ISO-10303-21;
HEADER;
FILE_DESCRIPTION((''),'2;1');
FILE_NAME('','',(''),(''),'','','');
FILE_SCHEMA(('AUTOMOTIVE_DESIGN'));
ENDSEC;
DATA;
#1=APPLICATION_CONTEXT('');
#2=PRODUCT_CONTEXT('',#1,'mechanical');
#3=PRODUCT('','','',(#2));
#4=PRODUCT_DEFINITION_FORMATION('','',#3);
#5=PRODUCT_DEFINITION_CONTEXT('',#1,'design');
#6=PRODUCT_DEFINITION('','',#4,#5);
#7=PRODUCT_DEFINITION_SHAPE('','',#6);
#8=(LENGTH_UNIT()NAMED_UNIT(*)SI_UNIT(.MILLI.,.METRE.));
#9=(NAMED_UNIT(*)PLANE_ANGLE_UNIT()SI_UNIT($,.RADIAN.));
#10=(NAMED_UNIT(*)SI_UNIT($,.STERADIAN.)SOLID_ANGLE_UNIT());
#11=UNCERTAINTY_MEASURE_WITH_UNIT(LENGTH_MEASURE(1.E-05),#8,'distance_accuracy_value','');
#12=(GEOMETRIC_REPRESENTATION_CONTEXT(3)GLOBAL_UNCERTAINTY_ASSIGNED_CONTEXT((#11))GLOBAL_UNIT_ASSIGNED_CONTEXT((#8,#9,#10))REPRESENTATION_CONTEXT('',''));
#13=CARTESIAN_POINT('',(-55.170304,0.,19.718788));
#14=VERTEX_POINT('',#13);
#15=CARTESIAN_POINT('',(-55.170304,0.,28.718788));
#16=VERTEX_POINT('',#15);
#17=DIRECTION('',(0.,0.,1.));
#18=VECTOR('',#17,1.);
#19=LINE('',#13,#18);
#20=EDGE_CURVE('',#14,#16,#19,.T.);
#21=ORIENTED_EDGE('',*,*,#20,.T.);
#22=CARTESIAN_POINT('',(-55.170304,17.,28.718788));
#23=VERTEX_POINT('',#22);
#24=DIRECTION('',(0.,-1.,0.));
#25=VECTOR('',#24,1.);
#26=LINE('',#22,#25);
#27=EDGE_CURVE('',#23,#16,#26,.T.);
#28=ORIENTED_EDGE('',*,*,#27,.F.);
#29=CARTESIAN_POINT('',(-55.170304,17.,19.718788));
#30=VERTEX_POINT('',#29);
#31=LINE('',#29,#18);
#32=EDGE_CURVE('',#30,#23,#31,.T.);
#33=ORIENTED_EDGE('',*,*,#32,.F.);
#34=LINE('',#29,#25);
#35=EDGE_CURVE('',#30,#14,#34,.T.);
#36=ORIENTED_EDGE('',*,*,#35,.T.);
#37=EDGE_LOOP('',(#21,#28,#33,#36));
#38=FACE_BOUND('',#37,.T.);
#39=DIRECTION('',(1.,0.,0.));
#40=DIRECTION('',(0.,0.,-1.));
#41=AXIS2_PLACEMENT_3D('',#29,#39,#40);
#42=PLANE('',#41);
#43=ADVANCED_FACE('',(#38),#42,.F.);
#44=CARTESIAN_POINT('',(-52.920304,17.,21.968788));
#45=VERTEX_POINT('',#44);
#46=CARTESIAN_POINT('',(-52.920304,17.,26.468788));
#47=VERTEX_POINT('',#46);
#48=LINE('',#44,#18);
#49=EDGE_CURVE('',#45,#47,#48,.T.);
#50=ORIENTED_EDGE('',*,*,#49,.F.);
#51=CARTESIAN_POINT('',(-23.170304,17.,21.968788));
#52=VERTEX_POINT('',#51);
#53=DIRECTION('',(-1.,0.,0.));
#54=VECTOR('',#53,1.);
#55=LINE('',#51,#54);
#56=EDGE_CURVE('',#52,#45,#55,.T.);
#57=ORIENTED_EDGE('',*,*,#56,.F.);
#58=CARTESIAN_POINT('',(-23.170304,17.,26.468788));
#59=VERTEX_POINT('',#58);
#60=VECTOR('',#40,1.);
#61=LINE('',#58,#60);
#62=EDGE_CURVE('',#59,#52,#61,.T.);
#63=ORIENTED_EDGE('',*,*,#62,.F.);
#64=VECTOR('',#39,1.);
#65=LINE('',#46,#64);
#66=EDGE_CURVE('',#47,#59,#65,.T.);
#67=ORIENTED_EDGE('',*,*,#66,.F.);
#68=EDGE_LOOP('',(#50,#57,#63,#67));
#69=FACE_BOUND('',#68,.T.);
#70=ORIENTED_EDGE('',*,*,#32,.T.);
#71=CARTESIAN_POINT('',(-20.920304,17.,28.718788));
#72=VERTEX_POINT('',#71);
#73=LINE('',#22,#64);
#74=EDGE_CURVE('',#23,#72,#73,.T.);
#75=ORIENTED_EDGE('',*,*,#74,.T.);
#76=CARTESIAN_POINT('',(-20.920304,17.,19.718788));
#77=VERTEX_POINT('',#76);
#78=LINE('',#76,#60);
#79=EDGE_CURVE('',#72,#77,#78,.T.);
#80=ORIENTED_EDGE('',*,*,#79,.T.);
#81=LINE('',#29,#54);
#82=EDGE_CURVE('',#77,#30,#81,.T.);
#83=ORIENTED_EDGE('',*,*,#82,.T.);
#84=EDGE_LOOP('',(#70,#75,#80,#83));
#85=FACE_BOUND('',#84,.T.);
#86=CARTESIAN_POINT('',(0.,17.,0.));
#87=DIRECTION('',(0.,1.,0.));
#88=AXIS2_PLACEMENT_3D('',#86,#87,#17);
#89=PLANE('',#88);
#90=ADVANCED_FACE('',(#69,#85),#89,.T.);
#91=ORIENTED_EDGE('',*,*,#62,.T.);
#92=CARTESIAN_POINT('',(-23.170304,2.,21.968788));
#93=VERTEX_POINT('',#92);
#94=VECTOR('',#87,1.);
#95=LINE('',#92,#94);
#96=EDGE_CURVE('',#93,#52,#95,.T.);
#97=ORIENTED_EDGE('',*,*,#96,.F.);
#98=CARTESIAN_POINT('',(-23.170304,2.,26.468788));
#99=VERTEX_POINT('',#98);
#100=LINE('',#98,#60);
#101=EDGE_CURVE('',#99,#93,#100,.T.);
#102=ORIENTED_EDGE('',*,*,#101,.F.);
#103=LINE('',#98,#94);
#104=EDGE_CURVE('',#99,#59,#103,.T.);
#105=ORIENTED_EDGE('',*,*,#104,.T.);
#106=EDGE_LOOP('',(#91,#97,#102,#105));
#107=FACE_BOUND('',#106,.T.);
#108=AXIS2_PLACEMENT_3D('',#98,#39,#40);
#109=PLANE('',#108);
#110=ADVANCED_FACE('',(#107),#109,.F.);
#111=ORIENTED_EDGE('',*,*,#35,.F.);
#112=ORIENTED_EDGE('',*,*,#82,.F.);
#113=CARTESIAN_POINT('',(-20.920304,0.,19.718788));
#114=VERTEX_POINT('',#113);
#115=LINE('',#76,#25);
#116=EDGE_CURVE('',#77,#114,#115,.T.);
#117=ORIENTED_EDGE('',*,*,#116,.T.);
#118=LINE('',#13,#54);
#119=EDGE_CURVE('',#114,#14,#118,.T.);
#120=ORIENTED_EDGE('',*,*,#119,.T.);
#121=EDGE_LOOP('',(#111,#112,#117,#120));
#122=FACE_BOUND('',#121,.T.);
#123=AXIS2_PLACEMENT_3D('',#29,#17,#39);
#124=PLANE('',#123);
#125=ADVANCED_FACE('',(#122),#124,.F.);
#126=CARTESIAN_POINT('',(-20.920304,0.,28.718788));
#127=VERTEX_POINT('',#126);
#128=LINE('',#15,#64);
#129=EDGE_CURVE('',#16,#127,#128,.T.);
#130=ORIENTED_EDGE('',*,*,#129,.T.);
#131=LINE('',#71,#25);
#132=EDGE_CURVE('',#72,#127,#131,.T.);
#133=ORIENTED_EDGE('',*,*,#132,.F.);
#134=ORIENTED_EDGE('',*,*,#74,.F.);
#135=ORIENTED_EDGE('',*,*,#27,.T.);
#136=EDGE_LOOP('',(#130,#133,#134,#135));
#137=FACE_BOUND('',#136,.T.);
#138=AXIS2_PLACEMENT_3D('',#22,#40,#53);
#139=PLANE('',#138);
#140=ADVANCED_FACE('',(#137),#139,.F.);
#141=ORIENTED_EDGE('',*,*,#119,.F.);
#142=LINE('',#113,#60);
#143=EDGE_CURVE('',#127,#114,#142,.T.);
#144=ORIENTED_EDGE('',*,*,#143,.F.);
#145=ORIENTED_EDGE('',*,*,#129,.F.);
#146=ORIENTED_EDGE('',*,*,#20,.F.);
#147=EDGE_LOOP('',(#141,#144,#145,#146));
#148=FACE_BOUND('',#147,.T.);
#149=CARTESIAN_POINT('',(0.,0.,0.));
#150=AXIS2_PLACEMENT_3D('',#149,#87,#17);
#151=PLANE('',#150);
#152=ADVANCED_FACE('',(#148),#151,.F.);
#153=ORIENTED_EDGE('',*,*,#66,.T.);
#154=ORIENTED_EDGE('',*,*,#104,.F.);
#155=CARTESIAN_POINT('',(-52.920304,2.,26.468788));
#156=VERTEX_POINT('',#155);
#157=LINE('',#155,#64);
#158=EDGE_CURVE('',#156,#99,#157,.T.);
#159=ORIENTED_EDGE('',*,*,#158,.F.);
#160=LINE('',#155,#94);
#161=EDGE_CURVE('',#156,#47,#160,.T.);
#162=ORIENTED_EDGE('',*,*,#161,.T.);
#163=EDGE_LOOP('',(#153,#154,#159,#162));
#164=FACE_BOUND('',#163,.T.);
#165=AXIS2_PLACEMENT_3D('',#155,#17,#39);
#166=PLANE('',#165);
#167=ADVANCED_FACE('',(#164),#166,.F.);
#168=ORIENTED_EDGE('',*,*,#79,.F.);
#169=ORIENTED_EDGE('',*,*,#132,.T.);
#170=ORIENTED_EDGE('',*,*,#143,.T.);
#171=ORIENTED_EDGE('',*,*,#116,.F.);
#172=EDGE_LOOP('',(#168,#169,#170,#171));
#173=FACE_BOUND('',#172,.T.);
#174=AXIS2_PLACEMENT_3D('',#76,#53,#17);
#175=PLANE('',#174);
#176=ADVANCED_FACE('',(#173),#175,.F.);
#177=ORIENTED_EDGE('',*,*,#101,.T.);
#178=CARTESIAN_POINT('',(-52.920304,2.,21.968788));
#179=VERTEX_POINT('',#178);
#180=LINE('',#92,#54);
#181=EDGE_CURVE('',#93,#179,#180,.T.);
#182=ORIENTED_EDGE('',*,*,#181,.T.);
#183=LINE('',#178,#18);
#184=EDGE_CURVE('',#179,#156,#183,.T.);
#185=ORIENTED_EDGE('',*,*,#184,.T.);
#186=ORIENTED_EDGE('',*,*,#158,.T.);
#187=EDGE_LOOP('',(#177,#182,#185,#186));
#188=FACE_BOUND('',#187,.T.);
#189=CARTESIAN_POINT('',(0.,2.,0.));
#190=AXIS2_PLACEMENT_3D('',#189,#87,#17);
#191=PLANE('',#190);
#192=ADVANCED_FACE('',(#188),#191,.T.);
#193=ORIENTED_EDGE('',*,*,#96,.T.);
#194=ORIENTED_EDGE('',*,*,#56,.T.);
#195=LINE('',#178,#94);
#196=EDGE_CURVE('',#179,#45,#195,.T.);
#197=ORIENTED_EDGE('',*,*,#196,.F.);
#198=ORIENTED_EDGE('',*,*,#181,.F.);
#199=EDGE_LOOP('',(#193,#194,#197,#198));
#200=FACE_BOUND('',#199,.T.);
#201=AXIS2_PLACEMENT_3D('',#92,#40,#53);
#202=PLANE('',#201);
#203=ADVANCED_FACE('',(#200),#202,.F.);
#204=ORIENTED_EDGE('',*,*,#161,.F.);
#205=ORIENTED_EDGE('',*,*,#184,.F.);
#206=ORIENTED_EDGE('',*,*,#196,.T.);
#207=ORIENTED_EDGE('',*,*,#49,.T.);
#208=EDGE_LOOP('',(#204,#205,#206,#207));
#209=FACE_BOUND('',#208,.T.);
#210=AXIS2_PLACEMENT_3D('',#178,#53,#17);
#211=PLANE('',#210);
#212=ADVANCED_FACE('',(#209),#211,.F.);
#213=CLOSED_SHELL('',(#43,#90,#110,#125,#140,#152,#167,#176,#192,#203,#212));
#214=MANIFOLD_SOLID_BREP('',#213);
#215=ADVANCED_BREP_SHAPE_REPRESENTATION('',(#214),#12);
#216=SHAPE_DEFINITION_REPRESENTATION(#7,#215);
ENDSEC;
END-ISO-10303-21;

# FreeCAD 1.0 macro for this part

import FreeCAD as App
import Part
import Sketcher
from FreeCAD import Vector
Q = App.Units.Quantity

doc = App.newDocument("Part")
body = doc.addObject("PartDesign::Body", "Body")

sketch1 = body.newObject("Sketcher::SketchObject", "Sketch")
sketch1.AttachmentSupport = (doc.getObject("XZ_Plane"), [""])
sketch1.MapMode = "FlatFace"
sketch1.addGeometry([
    Part.LineSegment(Vector(-55, 20, 0), Vector(-55, 29, 0)),
    Part.LineSegment(Vector(-55, 29, 0), Vector(-21, 29, 0)),
    Part.LineSegment(Vector(-21, 29, 0), Vector(-21, 20, 0)),
    Part.LineSegment(Vector(-21, 20, 0), Vector(-55, 20, 0)),
], False)
sketch1.addConstraint([
    Sketcher.Constraint("Coincident", 0, 2, 1, 1),
    Sketcher.Constraint("Coincident", 1, 2, 2, 1),
    Sketcher.Constraint("Coincident", 2, 2, 3, 1),
    Sketcher.Constraint("Coincident", 3, 2, 0, 1),
    Sketcher.Constraint("Vertical", 0),
    Sketcher.Constraint("Horizontal", 1),
    Sketcher.Constraint("Vertical", 2),
    Sketcher.Constraint("Horizontal", 3),
    Sketcher.Constraint("DistanceY", 0, 1, 0, 2, Q("9 mm")),
    Sketcher.Constraint("DistanceX", 1, 1, 1, 2, Q("34.25 mm")),
    Sketcher.Constraint("DistanceY", -1, 1, 0, 2, Q("28.718788 mm")),
    Sketcher.Constraint("DistanceX", 0, 2, -1, 1, Q("55.170304 mm")),
])
pad1 = body.newObject("PartDesign::Pad", "Pad")
pad1.Profile = sketch1
pad1.Length = 17
pad1.Reversed = True

sketch2 = body.newObject("Sketcher::SketchObject", "Sketch001")
sketch2.AttachmentSupport = (doc.getObject("XZ_Plane"), [""])
sketch2.MapMode = "FlatFace"
sketch2.AttachmentOffset = App.Placement(Vector(0, 0, -17), App.Rotation())
sketch2.addGeometry([
    Part.LineSegment(Vector(-52.9, 22, 0), Vector(-52.9, 26.5, 0)),
    Part.LineSegment(Vector(-52.9, 26.5, 0), Vector(-23.2, 26.5, 0)),
    Part.LineSegment(Vector(-23.2, 26.5, 0), Vector(-23.2, 22, 0)),
    Part.LineSegment(Vector(-23.2, 22, 0), Vector(-52.9, 22, 0)),
], False)
sketch2.addConstraint([
    Sketcher.Constraint("Coincident", 0, 2, 1, 1),
    Sketcher.Constraint("Coincident", 1, 2, 2, 1),
    Sketcher.Constraint("Coincident", 2, 2, 3, 1),
    Sketcher.Constraint("Coincident", 3, 2, 0, 1),
    Sketcher.Constraint("Vertical", 0),
    Sketcher.Constraint("Horizontal", 1),
    Sketcher.Constraint("Vertical", 2),
    Sketcher.Constraint("Horizontal", 3),
    Sketcher.Constraint("DistanceY", 0, 1, 0, 2, Q("4.5 mm")),
    Sketcher.Constraint("DistanceX", 1, 1, 1, 2, Q("29.75 mm")),
    Sketcher.Constraint("DistanceY", -1, 1, 0, 2, Q("26.468788 mm")),
    Sketcher.Constraint("DistanceX", 0, 2, -1, 1, Q("52.920304 mm")),
])
pocket1 = body.newObject("PartDesign::Pocket", "Pocket")
pocket1.Profile = sketch2
pocket1.Length = 15
pocket1.Reversed = True

doc.recompute()
